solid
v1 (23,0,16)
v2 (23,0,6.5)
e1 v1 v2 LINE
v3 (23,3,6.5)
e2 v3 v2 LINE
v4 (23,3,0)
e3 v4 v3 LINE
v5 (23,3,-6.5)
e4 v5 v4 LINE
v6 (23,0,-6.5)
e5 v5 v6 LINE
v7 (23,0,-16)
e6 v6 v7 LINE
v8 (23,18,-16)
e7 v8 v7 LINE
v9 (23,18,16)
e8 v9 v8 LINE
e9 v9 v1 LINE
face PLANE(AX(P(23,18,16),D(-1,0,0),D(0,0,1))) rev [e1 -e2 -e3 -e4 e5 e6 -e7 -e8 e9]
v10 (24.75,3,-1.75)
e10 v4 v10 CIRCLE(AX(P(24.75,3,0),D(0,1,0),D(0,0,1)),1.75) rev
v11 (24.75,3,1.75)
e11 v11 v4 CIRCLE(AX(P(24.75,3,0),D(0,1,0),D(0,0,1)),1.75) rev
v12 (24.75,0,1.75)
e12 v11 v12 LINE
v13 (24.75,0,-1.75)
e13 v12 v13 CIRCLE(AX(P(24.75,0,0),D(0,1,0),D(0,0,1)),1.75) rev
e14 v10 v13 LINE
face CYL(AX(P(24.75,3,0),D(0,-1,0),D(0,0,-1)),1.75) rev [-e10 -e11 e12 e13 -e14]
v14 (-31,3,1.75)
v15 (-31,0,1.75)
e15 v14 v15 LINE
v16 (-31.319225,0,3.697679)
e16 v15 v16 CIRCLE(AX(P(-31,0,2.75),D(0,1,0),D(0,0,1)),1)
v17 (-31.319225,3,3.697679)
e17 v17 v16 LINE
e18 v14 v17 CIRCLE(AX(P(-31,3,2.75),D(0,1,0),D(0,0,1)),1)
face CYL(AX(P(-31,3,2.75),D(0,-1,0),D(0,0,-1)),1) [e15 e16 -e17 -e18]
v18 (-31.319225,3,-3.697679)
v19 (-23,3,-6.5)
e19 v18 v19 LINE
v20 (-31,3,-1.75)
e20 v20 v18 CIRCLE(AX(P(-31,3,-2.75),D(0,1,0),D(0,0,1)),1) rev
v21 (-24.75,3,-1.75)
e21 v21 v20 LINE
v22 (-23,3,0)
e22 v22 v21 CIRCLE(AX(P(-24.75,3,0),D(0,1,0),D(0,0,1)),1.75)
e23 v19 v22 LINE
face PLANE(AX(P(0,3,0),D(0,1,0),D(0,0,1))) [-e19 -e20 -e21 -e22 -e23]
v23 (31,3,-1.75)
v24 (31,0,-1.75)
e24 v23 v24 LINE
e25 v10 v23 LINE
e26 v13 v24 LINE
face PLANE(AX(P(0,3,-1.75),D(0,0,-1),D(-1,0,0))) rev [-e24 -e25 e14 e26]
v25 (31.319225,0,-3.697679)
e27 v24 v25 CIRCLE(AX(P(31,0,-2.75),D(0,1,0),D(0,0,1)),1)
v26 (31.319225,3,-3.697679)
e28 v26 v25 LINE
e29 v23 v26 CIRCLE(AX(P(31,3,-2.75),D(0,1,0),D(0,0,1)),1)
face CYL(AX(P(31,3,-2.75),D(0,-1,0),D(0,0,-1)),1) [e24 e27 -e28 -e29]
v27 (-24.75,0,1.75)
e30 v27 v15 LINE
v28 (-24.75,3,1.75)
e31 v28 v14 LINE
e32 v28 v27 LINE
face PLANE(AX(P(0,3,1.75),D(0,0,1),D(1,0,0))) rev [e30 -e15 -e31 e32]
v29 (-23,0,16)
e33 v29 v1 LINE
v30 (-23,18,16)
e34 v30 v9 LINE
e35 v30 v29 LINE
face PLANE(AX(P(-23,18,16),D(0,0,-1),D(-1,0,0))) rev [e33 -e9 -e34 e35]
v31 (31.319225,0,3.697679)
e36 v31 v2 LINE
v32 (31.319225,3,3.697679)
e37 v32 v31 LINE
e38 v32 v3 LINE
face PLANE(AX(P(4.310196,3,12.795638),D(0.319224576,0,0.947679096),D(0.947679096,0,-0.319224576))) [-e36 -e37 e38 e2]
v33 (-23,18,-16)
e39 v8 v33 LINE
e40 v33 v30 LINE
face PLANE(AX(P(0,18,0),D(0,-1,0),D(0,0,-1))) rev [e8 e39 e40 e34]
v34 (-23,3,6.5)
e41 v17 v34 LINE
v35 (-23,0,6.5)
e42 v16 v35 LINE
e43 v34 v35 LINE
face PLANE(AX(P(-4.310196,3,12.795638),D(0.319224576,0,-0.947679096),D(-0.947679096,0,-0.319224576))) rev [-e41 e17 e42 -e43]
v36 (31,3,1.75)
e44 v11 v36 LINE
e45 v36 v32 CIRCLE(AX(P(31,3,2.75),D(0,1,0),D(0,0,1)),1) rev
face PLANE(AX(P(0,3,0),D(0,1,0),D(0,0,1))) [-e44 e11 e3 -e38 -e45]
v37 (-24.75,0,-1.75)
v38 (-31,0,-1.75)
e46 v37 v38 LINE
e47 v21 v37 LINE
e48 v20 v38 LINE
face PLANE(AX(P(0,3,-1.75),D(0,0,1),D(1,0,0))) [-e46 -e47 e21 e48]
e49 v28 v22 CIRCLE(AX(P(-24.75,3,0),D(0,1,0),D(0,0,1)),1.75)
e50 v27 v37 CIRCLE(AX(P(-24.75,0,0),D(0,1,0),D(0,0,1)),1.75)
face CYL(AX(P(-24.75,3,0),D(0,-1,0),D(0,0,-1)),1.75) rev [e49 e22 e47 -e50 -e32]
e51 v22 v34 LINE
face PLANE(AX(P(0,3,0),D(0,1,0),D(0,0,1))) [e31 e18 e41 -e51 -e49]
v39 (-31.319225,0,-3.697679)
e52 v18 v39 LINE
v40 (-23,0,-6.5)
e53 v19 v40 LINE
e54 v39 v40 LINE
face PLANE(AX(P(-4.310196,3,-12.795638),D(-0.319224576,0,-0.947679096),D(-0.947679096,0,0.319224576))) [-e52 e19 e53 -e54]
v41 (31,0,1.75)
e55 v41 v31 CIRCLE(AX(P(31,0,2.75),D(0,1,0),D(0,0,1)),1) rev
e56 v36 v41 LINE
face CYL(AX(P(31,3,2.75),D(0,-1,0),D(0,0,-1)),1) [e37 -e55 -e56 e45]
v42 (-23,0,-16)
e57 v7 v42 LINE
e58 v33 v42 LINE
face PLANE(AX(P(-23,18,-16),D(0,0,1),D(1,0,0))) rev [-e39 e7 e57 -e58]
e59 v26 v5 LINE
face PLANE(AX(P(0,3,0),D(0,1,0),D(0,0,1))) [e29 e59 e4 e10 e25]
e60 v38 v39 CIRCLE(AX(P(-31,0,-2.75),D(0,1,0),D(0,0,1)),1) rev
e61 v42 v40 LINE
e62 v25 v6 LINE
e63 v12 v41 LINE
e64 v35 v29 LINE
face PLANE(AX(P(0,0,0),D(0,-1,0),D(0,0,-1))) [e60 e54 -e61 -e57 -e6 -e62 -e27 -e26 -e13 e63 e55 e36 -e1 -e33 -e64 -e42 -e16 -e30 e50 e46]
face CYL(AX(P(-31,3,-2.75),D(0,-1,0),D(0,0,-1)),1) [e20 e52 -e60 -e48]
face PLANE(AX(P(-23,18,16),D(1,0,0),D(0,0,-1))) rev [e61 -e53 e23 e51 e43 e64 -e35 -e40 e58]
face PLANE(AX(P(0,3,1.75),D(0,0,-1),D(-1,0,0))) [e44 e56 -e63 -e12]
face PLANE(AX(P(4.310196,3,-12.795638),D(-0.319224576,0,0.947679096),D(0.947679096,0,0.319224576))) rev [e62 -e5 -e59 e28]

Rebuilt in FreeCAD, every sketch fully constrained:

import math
import FreeCAD as App
import Part
import Sketcher
from FreeCAD import Vector

doc = App.newDocument("Part")
params = doc.addObject("Spreadsheet::Sheet", "Params")
for row, (alias, value) in enumerate([
    ("sketch1_width", "46 mm"),
    ("sketch1_height", "32 mm"),
    ("pad1_length", "18 mm"),
    ("sketch2_radius", "1 mm"),
    ("sketch2_radius2", "1.75 mm"),
    ("sketch2_height", "6.5 mm"),
    ("pad2_length", "3 mm"),
], start=1):
    params.set(f"A{row}", alias)
    params.set(f"B{row}", "=" + value)
    params.setAlias(f"B{row}", alias)

body = doc.addObject("PartDesign::Body", "Body")

# Sketch on XZ plane
sketch1 = body.newObject("Sketcher::SketchObject", "Sketch")
sketch1.AttachmentSupport = (doc.getObject("XZ_Plane"), [""])
sketch1.MapMode = "FlatFace"
sketch1.addGeometry([
    Part.LineSegment(Vector(-23, -16, 0), Vector(-23, 16, 0)),
    Part.LineSegment(Vector(-23, 16, 0), Vector(23, 16, 0)),
    Part.LineSegment(Vector(23, 16, 0), Vector(23, -16, 0)),
    Part.LineSegment(Vector(23, -16, 0), Vector(-23, -16, 0)),
], False)
sketch1.addConstraint([
    Sketcher.Constraint("Coincident", 0, 2, 1, 1),
    Sketcher.Constraint("Coincident", 1, 2, 2, 1),
    Sketcher.Constraint("Coincident", 2, 2, 3, 1),
    Sketcher.Constraint("Coincident", 3, 2, 0, 1),
    Sketcher.Constraint("Vertical", 0),
    Sketcher.Constraint("Horizontal", 1),
    Sketcher.Constraint("Vertical", 2),
    Sketcher.Constraint("Horizontal", 3),
    Sketcher.Constraint("Symmetric", 0, 2, 2, 2, -1, 1),
    Sketcher.Constraint("DistanceX", 1, 1, 1, 2, 46.0),
    Sketcher.Constraint("DistanceY", 0, 1, 0, 2, 32.0),
])
sketch1.setExpression("Constraints[9]", "Params.sketch1_width")
sketch1.setExpression("Constraints[10]", "Params.sketch1_height")
pad1 = body.newObject("PartDesign::Pad", "Pad")
pad1.Profile = sketch1
pad1.setExpression("Length", "Params.pad1_length")
pad1.Reversed = True

# Sketch on XZ plane
sketch2 = body.newObject("Sketcher::SketchObject", "Sketch001")
sketch2.AttachmentSupport = (doc.getObject("XZ_Plane"), [""])
sketch2.MapMode = "FlatFace"
sketch2.addGeometry([
    Part.LineSegment(Vector(-31, -1.8, 0), Vector(-24.8, -1.8, 0)),  # 0
    Part.ArcOfCircle(Part.Circle(Vector(-24.8, 0, 0), Vector(0, 0, 1), 1.8), math.radians(-90), math.radians(0)),  # 1
    Part.LineSegment(Vector(-23, 0, 0), Vector(-23, -6.5, 0)),  # 2
    Part.LineSegment(Vector(-23, -6.5, 0), Vector(-31.3, -3.7, 0)),  # 3
    Part.ArcOfCircle(Part.Circle(Vector(-31, -2.8, 0), Vector(0, 0, 1), 1), math.radians(90), math.radians(251)),  # 4
    Part.LineSegment(Vector(-23, 6.5, 0), Vector(-23, 0, 0)),  # 5
    Part.ArcOfCircle(Part.Circle(Vector(-24.8, 0, 0), Vector(0, 0, 1), 1.8), math.radians(0), math.radians(90)),  # 6
    Part.LineSegment(Vector(-24.8, 1.8, 0), Vector(-31, 1.8, 0)),  # 7
    Part.ArcOfCircle(Part.Circle(Vector(-31, 2.8, 0), Vector(0, 0, 1), 1), math.radians(109), math.radians(270)),  # 8
    Part.LineSegment(Vector(-31.3, 3.7, 0), Vector(-23, 6.5, 0)),  # 9
    Part.LineSegment(Vector(31.3, -3.7, 0), Vector(23, -6.5, 0)),  # 10
    Part.LineSegment(Vector(23, -6.5, 0), Vector(23, 0, 0)),  # 11
    Part.ArcOfCircle(Part.Circle(Vector(24.8, 0, 0), Vector(0, 0, 1), 1.8), math.radians(180), math.radians(270)),  # 12
    Part.LineSegment(Vector(24.8, -1.8, 0), Vector(31, -1.8, 0)),  # 13
    Part.ArcOfCircle(Part.Circle(Vector(31, -2.8, 0), Vector(0, 0, 1), 1), math.radians(-71), math.radians(90)),  # 14
    Part.ArcOfCircle(Part.Circle(Vector(24.8, 0, 0), Vector(0, 0, 1), 1.8), math.radians(90), math.radians(180)),  # 15
    Part.LineSegment(Vector(23, 0, 0), Vector(23, 6.5, 0)),  # 16
    Part.LineSegment(Vector(23, 6.5, 0), Vector(31.3, 3.7, 0)),  # 17
    Part.ArcOfCircle(Part.Circle(Vector(31, 2.8, 0), Vector(0, 0, 1), 1), math.radians(-90), math.radians(71)),  # 18
    Part.LineSegment(Vector(31, 1.8, 0), Vector(24.8, 1.8, 0)),  # 19
], False)
sketch2.addConstraint([
    Sketcher.Constraint("Tangent", 0, 2, 1, 1),
    Sketcher.Constraint("Tangent", 1, 2, 2, 1),
    Sketcher.Constraint("Coincident", 2, 2, 3, 1),
    Sketcher.Constraint("Tangent", 3, 2, 4, 2),
    Sketcher.Constraint("Tangent", 4, 1, 0, 1),
    Sketcher.Constraint("Tangent", 5, 2, 6, 1),
    Sketcher.Constraint("Tangent", 6, 2, 7, 1),
    Sketcher.Constraint("Tangent", 7, 2, 8, 2),
    Sketcher.Constraint("Tangent", 8, 1, 9, 1),
    Sketcher.Constraint("Coincident", 9, 2, 5, 1),
    Sketcher.Constraint("Coincident", 10, 2, 11, 1),
    Sketcher.Constraint("Tangent", 11, 2, 12, 1),
    Sketcher.Constraint("Tangent", 12, 2, 13, 1),
    Sketcher.Constraint("Tangent", 13, 2, 14, 2),
    Sketcher.Constraint("Tangent", 14, 1, 10, 1),
    Sketcher.Constraint("Tangent", 15, 2, 16, 1),
    Sketcher.Constraint("Coincident", 16, 2, 17, 1),
    Sketcher.Constraint("Tangent", 17, 2, 18, 2),
    Sketcher.Constraint("Tangent", 18, 1, 19, 1),
    Sketcher.Constraint("Tangent", 19, 2, 15, 1),
    Sketcher.Constraint("Horizontal", 0),
    Sketcher.Constraint("Vertical", 2),
    Sketcher.Constraint("Vertical", 5),
    Sketcher.Constraint("Horizontal", 7),
    Sketcher.Constraint("Vertical", 11),
    Sketcher.Constraint("Horizontal", 13),
    Sketcher.Constraint("Vertical", 16),
    Sketcher.Constraint("Horizontal", 19),
    Sketcher.Constraint("Coincident", 6, 3, 1, 3),
    Sketcher.Constraint("Coincident", 15, 3, 12, 3),
    Sketcher.Constraint("Equal", 1, 6),
    Sketcher.Constraint("Equal", 4, 8),
    Sketcher.Constraint("Equal", 6, 12),
    Sketcher.Constraint("Equal", 8, 14),
    Sketcher.Constraint("Equal", 12, 15),
    Sketcher.Constraint("Equal", 14, 18),
    Sketcher.Constraint("Symmetric", 1, 3, 12, 3, -1, 1),
    Sketcher.Constraint("Symmetric", 8, 1, 14, 1, -1, 1),
    Sketcher.Constraint("Symmetric", 3, 2, 17, 2, -1, 1),
    Sketcher.Constraint("Symmetric", 4, 3, 14, 3, -2),
    Sketcher.Constraint("Horizontal", 2, 2, 10, 2),
    Sketcher.Constraint("Radius", 4, 1.0),
    Sketcher.Constraint("Radius", 1, 1.75),
    Sketcher.Constraint("DistanceY", 2, 2, 2, 1, 6.5),
    Sketcher.Constraint("DistanceX", 4, 3, -1, 1, 31.0),
    Sketcher.Constraint("DistanceX", 1, 2, -1, 1, 23.0),
])
sketch2.setExpression("Constraints[41]", "Params.sketch2_radius")
sketch2.setExpression("Constraints[42]", "Params.sketch2_radius2")
sketch2.setExpression("Constraints[43]", "Params.sketch2_height")
pad2 = body.newObject("PartDesign::Pad", "Pad001")
pad2.Profile = sketch2
pad2.setExpression("Length", "Params.pad2_length")
pad2.Reversed = True

doc.recompute()
